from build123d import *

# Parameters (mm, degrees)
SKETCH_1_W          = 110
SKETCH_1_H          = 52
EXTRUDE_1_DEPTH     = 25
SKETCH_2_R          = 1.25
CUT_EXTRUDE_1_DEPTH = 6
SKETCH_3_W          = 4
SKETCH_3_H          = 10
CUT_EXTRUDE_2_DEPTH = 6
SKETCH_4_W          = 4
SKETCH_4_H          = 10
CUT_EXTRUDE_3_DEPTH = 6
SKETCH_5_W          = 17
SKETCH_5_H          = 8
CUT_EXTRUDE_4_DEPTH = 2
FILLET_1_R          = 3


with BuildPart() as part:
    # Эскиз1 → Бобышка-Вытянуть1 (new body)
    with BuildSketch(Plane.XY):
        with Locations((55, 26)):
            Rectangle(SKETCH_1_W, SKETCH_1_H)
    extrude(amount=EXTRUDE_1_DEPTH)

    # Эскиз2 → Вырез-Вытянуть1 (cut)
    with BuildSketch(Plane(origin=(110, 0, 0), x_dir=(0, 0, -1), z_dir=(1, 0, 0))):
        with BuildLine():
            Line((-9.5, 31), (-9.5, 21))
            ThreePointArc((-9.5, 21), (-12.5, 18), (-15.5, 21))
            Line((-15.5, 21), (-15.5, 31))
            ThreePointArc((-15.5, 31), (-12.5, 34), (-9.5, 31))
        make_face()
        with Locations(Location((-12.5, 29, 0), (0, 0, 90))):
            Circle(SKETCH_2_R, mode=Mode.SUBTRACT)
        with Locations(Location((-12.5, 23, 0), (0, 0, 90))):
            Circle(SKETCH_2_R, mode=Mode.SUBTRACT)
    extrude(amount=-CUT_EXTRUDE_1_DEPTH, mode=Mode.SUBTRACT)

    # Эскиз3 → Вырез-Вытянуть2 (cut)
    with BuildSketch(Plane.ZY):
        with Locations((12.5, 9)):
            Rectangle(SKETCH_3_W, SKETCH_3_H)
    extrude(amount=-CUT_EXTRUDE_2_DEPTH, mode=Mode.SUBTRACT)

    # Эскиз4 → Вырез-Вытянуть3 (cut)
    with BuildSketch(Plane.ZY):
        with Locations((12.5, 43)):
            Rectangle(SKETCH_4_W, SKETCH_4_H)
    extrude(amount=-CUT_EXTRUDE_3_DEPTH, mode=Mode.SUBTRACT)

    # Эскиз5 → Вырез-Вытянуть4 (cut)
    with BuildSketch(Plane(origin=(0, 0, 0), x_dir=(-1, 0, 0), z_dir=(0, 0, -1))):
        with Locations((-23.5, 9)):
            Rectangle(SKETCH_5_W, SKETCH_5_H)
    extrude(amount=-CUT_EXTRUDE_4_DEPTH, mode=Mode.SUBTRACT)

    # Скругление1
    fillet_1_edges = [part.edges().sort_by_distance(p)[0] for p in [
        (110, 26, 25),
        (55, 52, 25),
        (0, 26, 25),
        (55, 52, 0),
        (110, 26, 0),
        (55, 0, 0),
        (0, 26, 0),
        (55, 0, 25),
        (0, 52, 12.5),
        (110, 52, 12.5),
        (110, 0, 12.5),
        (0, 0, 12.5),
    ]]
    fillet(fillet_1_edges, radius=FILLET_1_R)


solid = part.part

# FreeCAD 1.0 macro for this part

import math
import FreeCAD as App
import Part
import Sketcher

V = App.Vector
Q = App.Units.Quantity


def edges_at(feature, points):
    """Names of the edges that pass closest to the given points."""
    edges = feature.Shape.Edges
    near = lambda p: min(range(len(edges)), key=lambda i: edges[i].distToShape(Part.Vertex(*p))[0])
    return sorted({f"Edge{near(p) + 1}" for p in points})

doc = App.newDocument("Part")
body = doc.addObject("PartDesign::Body", "Body")

sketch1 = doc.addObject("Sketcher::SketchObject", "Sketch")
body.addObject(sketch1)
sketch1.AttachmentSupport = (doc.XY_Plane, [""])
sketch1.MapMode = "FlatFace"
sketch1.addGeometry([
    Part.LineSegment(V(0, 52, 0), V(0, 0, 0)),
    Part.LineSegment(V(0, 0, 0), V(110, 0, 0)),
    Part.LineSegment(V(110, 0, 0), V(110, 52, 0)),
    Part.LineSegment(V(110, 52, 0), V(0, 52, 0)),
], False)
sketch1.addConstraint([
    Sketcher.Constraint("Coincident", 0, 2, 1, 1),
    Sketcher.Constraint("Coincident", 1, 2, 2, 1),
    Sketcher.Constraint("Coincident", 2, 2, 3, 1),
    Sketcher.Constraint("Coincident", 3, 2, 0, 1),
    Sketcher.Constraint("Vertical", 0),
    Sketcher.Constraint("Horizontal", 1),
    Sketcher.Constraint("Vertical", 2),
    Sketcher.Constraint("Horizontal", 3),
    Sketcher.Constraint("Coincident", 0, 2, -1, 1),
    Sketcher.Constraint("DistanceX", 1, 1, 1, 2, Q("110 mm")),
    Sketcher.Constraint("DistanceY", 0, 2, 0, 1, Q("52 mm")),
])
pad1 = doc.addObject("PartDesign::Pad", "Pad")
body.addObject(pad1)
pad1.Profile = sketch1
pad1.Length = 25

sketch2 = doc.addObject("Sketcher::SketchObject", "Sketch001")
body.addObject(sketch2)
sketch2.AttachmentSupport = (doc.YZ_Plane, [""])
sketch2.MapMode = "FlatFace"
sketch2.AttachmentOffset = App.Placement(V(0, 0, 110), App.Rotation())
sketch2.addGeometry([
    Part.LineSegment(V(21, 9.5, 0), V(31, 9.5, 0)),
    Part.ArcOfCircle(Part.Circle(V(31, 12.5, 0), V(0, 0, 1), 3), math.radians(-90), math.radians(90)),
    Part.LineSegment(V(31, 15.5, 0), V(21, 15.5, 0)),
    Part.ArcOfCircle(Part.Circle(V(21, 12.5, 0), V(0, 0, 1), 3), math.radians(90), math.radians(270)),
    Part.Circle(V(23, 12.5, 0), V(0, 0, 1), 1.2),
    Part.Circle(V(29, 12.5, 0), V(0, 0, 1), 1.2),
], False)
sketch2.addConstraint([
    Sketcher.Constraint("Tangent", 0, 2, 1, 1),
    Sketcher.Constraint("Tangent", 1, 2, 2, 1),
    Sketcher.Constraint("Tangent", 2, 2, 3, 1),
    Sketcher.Constraint("Tangent", 3, 2, 0, 1),
    Sketcher.Constraint("Horizontal", 0),
    Sketcher.Constraint("Horizontal", 2),
    Sketcher.Constraint("Equal", 4, 5),
    Sketcher.Constraint("Horizontal", 3, 3, 4, 3),
    Sketcher.Constraint("Horizontal", 4, 3, 5, 3),
    Sketcher.Constraint("Radius", 1, Q("3 mm")),
    Sketcher.Constraint("Diameter", 4, Q("2.5 mm")),
    Sketcher.Constraint("DistanceX", 0, 1, 0, 2, Q("10 mm")),
    Sketcher.Constraint("DistanceX", -1, 1, 1, 3, Q("31 mm")),
    Sketcher.Constraint("DistanceX", -1, 1, 4, 3, Q("23 mm")),
    Sketcher.Constraint("DistanceX", -1, 1, 5, 3, Q("29 mm")),
    Sketcher.Constraint("DistanceY", -1, 1, 1, 3, Q("12.5 mm")),
])
pocket1 = doc.addObject("PartDesign::Pocket", "Pocket")
body.addObject(pocket1)
pocket1.Profile = sketch2
pocket1.Length = 6

sketch3 = doc.addObject("Sketcher::SketchObject", "Sketch002")
body.addObject(sketch3)
sketch3.AttachmentSupport = (doc.YZ_Plane, [""])
sketch3.MapMode = "FlatFace"
sketch3.addGeometry([
    Part.LineSegment(V(14, 10.5, 0), V(4, 10.5, 0)),
    Part.LineSegment(V(4, 10.5, 0), V(4, 14.5, 0)),
    Part.LineSegment(V(4, 14.5, 0), V(14, 14.5, 0)),
    Part.LineSegment(V(14, 14.5, 0), V(14, 10.5, 0)),
], False)
sketch3.addConstraint([
    Sketcher.Constraint("Coincident", 0, 2, 1, 1),
    Sketcher.Constraint("Coincident", 1, 2, 2, 1),
    Sketcher.Constraint("Coincident", 2, 2, 3, 1),
    Sketcher.Constraint("Coincident", 3, 2, 0, 1),
    Sketcher.Constraint("Horizontal", 0),
    Sketcher.Constraint("Vertical", 1),
    Sketcher.Constraint("Horizontal", 2),
    Sketcher.Constraint("Vertical", 3),
    Sketcher.Constraint("DistanceX", 0, 2, 0, 1, Q("10 mm")),
    Sketcher.Constraint("DistanceY", 1, 1, 1, 2, Q("4 mm")),
    Sketcher.Constraint("DistanceX", -1, 1, 0, 2, Q("4 mm")),
    Sketcher.Constraint("DistanceY", -1, 1, 0, 2, Q("10.5 mm")),
])
pocket2 = doc.addObject("PartDesign::Pocket", "Pocket001")
body.addObject(pocket2)
pocket2.Profile = sketch3
pocket2.Length = 6
pocket2.Reversed = True

sketch4 = doc.addObject("Sketcher::SketchObject", "Sketch003")
body.addObject(sketch4)
sketch4.AttachmentSupport = (doc.YZ_Plane, [""])
sketch4.MapMode = "FlatFace"
sketch4.addGeometry([
    Part.LineSegment(V(48, 10.5, 0), V(38, 10.5, 0)),
    Part.LineSegment(V(38, 10.5, 0), V(38, 14.5, 0)),
    Part.LineSegment(V(38, 14.5, 0), V(48, 14.5, 0)),
    Part.LineSegment(V(48, 14.5, 0), V(48, 10.5, 0)),
], False)
sketch4.addConstraint([
    Sketcher.Constraint("Coincident", 0, 2, 1, 1),
    Sketcher.Constraint("Coincident", 1, 2, 2, 1),
    Sketcher.Constraint("Coincident", 2, 2, 3, 1),
    Sketcher.Constraint("Coincident", 3, 2, 0, 1),
    Sketcher.Constraint("Horizontal", 0),
    Sketcher.Constraint("Vertical", 1),
    Sketcher.Constraint("Horizontal", 2),
    Sketcher.Constraint("Vertical", 3),
    Sketcher.Constraint("DistanceX", 0, 2, 0, 1, Q("10 mm")),
    Sketcher.Constraint("DistanceY", 1, 1, 1, 2, Q("4 mm")),
    Sketcher.Constraint("DistanceX", -1, 1, 0, 2, Q("38 mm")),
    Sketcher.Constraint("DistanceY", -1, 1, 0, 2, Q("10.5 mm")),
])
pocket3 = doc.addObject("PartDesign::Pocket", "Pocket002")
body.addObject(pocket3)
pocket3.Profile = sketch4
pocket3.Length = 6
pocket3.Reversed = True

sketch5 = doc.addObject("Sketcher::SketchObject", "Sketch004")
body.addObject(sketch5)
sketch5.AttachmentSupport = (doc.XY_Plane, [""])
sketch5.MapMode = "FlatFace"
sketch5.addGeometry([
    Part.LineSegment(V(32, 13, 0), V(32, 5, 0)),
    Part.LineSegment(V(32, 5, 0), V(15, 5, 0)),
    Part.LineSegment(V(15, 5, 0), V(15, 13, 0)),
    Part.LineSegment(V(15, 13, 0), V(32, 13, 0)),
], False)
sketch5.addConstraint([
    Sketcher.Constraint("Coincident", 0, 2, 1, 1),
    Sketcher.Constraint("Coincident", 1, 2, 2, 1),
    Sketcher.Constraint("Coincident", 2, 2, 3, 1),
    Sketcher.Constraint("Coincident", 3, 2, 0, 1),
    Sketcher.Constraint("Vertical", 0),
    Sketcher.Constraint("Horizontal", 1),
    Sketcher.Constraint("Vertical", 2),
    Sketcher.Constraint("Horizontal", 3),
    Sketcher.Constraint("DistanceX", 1, 2, 1, 1, Q("17 mm")),
    Sketcher.Constraint("DistanceY", 0, 2, 0, 1, Q("8 mm")),
    Sketcher.Constraint("DistanceX", -1, 1, 0, 2, Q("32 mm")),
    Sketcher.Constraint("DistanceY", -1, 1, 0, 2, Q("5 mm")),
])
pocket4 = doc.addObject("PartDesign::Pocket", "Pocket003")
body.addObject(pocket4)
pocket4.Profile = sketch5
pocket4.Length = 2
pocket4.Reversed = True
doc.recompute()

fillet = doc.addObject("PartDesign::Fillet", "Fillet")
body.addObject(fillet)
fillet.Base = (pocket4, edges_at(pocket4, [
    (110, 26, 25),
    (55, 52, 25),
    (0, 26, 25),
    (55, 52, 0),
    (110, 26, 0),
    (55, 0, 0),
    (0, 26, 0),
    (55, 0, 25),
    (0, 52, 12.5),
    (110, 52, 12.5),
    (110, 0, 12.5),
    (0, 0, 12.5),
]))
fillet.Radius = 3

doc.recompute()
